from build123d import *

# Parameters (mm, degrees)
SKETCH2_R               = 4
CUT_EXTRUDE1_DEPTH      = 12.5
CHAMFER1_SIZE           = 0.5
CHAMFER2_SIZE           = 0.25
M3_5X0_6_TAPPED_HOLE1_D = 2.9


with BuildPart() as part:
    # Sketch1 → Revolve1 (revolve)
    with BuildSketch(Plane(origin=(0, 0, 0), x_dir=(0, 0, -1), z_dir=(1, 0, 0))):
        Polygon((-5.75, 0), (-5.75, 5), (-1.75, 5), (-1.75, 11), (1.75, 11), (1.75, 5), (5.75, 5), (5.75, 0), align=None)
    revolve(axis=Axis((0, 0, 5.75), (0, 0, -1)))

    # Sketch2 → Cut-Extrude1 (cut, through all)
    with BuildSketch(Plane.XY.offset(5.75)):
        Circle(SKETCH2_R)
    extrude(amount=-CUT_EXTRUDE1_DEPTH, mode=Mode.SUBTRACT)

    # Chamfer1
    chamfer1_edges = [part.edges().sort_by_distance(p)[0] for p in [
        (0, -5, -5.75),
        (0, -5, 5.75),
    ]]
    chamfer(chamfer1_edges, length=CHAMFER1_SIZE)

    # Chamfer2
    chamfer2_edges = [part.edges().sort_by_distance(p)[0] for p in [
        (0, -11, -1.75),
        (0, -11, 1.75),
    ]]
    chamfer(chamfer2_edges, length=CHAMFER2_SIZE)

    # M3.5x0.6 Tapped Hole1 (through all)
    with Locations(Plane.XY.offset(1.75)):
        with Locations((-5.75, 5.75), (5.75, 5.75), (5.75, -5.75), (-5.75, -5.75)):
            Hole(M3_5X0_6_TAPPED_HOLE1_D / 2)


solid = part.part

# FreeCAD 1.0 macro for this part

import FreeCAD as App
import Part
import Sketcher
from FreeCAD import Vector


def edges_at(feature, points):
    """Names of the edges that pass closest to the given points."""
    edges = feature.Shape.Edges
    near = lambda p: min(range(len(edges)), key=lambda i: edges[i].distToShape(Part.Vertex(*p))[0])
    return sorted({f"Edge{near(p) + 1}" for p in points})


def add_polygon(sketch, points):
    """Adds a closed chain of lines whose ends are joined by coincident constraints."""
    first, n = sketch.GeometryCount, len(points)
    for a, b in zip(points, points[1:] + points[:1]):
        sketch.addGeometry(Part.LineSegment(App.Vector(*a, 0), App.Vector(*b, 0)), False)
    for i in range(n):
        sketch.addConstraint(Sketcher.Constraint("Coincident", first + i, 2, first + (i + 1) % n, 1))

doc = App.newDocument("Part")
body = doc.addObject("PartDesign::Body", "Body")

# Sketch on YZ plane
sketch1 = body.newObject("Sketcher::SketchObject", "Sketch")
sketch1.AttachmentSupport = (doc.getObject("YZ_Plane"), [""])
sketch1.MapMode = "FlatFace"
add_polygon(sketch1, [(5, 5.75), (0, 5.75), (0, -5.75), (5, -5.75), (5, -1.75), (11, -1.75), (11, 1.75), (5, 1.75)])  # lines 0-7
sketch1.addConstraint(Sketcher.Constraint("Horizontal", 0))
sketch1.addConstraint(Sketcher.Constraint("Vertical", 1))
sketch1.addConstraint(Sketcher.Constraint("Horizontal", 2))
sketch1.addConstraint(Sketcher.Constraint("Vertical", 3))
sketch1.addConstraint(Sketcher.Constraint("Horizontal", 4))
sketch1.addConstraint(Sketcher.Constraint("Vertical", 5))
sketch1.addConstraint(Sketcher.Constraint("Horizontal", 6))
sketch1.addConstraint(Sketcher.Constraint("Vertical", 7))
sketch1.addConstraint(Sketcher.Constraint("Symmetric", 0, 2, 1, 2, -1, 1))
sketch1.addConstraint(Sketcher.Constraint("Symmetric", 3, 2, 6, 2, -1))
sketch1.addConstraint(Sketcher.Constraint("DistanceX", 0, 2, 0, 1, 5.0))
sketch1.addConstraint(Sketcher.Constraint("DistanceX", 4, 1, 4, 2, 6.0))
sketch1.addConstraint(Sketcher.Constraint("DistanceY", 3, 1, 3, 2, 4.0))
sketch1.addConstraint(Sketcher.Constraint("DistanceY", 1, 2, 1, 1, 11.5))
revolution = body.newObject("PartDesign::Revolution", "Revolution")
revolution.Profile = sketch1
revolution.ReferenceAxis = (sketch1, ["V_Axis"])
revolution.Angle = 360

# Sketch on XY plane
sketch2 = body.newObject("Sketcher::SketchObject", "Sketch001")
sketch2.AttachmentSupport = (doc.getObject("XY_Plane"), [""])
sketch2.MapMode = "FlatFace"
sketch2.AttachmentOffset = App.Placement(Vector(0, 0, 5.75), App.Rotation())
sketch2.addGeometry(Part.Circle(Vector(0, 0, 0), Vector(0, 0, 1), 4), False)
sketch2.addConstraint(Sketcher.Constraint("Coincident", 0, 3, -1, 1))
sketch2.addConstraint(Sketcher.Constraint("Diameter", 0, 8.0))
pocket1 = body.newObject("PartDesign::Pocket", "Pocket")
pocket1.Profile = sketch2
pocket1.Type = "ThroughAll"
doc.recompute()

chamfer = body.newObject("PartDesign::Chamfer", "Chamfer")
chamfer.Base = (pocket1, edges_at(pocket1, [(0, -5, -5.75), (0, -5, 5.75)]))
chamfer.Size = 0.5
doc.recompute()

chamfer2 = body.newObject("PartDesign::Chamfer", "Chamfer001")
chamfer2.Base = (chamfer, edges_at(chamfer, [(0, -11, -1.75), (0, -11, 1.75)]))
chamfer2.Size = 0.25

# Sketch on XY plane
sketch3 = body.newObject("Sketcher::SketchObject", "Sketch002")
sketch3.AttachmentSupport = (doc.getObject("XY_Plane"), [""])
sketch3.MapMode = "FlatFace"
sketch3.AttachmentOffset = App.Placement(Vector(0, 0, 1.75), App.Rotation())
sketch3.addGeometry(Part.Circle(Vector(-5.75, 5.75, 0), Vector(0, 0, 1), 1.45), False)
sketch3.addGeometry(Part.Circle(Vector(5.75, 5.75, 0), Vector(0, 0, 1), 1.45), False)
sketch3.addGeometry(Part.Circle(Vector(5.75, -5.75, 0), Vector(0, 0, 1), 1.45), False)
sketch3.addGeometry(Part.Circle(Vector(-5.75, -5.75, 0), Vector(0, 0, 1), 1.45), False)
sketch3.addConstraint(Sketcher.Constraint("Equal", 0, 1))
sketch3.addConstraint(Sketcher.Constraint("Equal", 1, 2))
sketch3.addConstraint(Sketcher.Constraint("Equal", 2, 3))
sketch3.addConstraint(Sketcher.Constraint("Symmetric", 0, 3, 2, 3, -1, 1))
sketch3.addConstraint(Sketcher.Constraint("Symmetric", 1, 3, 3, 3, -1, 1))
sketch3.addConstraint(Sketcher.Constraint("Symmetric", 0, 3, 1, 3, -2))
sketch3.addConstraint(Sketcher.Constraint("Diameter", 0, 2.9))
sketch3.addConstraint(Sketcher.Constraint("DistanceX", 0, 3, 1, 3, 11.5))
sketch3.addConstraint(Sketcher.Constraint("DistanceY", 2, 3, 1, 3, 11.5))
doc.recompute()
hole = body.newObject("PartDesign::Hole", "Hole")
hole.Profile = sketch3
hole.ThreadType = "None"
hole.Diameter = 2.9
hole.DepthType = "ThroughAll"

doc.recompute()
